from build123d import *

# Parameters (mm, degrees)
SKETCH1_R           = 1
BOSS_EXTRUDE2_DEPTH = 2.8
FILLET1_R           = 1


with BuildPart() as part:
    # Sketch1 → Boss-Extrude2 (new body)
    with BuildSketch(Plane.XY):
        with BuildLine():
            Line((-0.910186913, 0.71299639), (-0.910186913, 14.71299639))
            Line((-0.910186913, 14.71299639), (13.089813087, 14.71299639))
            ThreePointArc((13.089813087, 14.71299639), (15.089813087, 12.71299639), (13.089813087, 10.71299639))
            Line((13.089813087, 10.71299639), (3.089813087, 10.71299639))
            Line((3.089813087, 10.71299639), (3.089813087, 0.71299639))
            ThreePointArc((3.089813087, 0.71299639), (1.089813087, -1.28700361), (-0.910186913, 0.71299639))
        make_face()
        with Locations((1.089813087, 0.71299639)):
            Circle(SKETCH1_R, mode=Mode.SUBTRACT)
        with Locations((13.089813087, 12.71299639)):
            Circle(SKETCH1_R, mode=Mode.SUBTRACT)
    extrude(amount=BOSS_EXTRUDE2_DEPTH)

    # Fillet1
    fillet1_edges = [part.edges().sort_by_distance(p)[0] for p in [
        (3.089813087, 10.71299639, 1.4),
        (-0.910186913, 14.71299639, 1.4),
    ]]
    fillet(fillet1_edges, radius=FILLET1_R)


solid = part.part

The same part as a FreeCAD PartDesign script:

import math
import FreeCAD as App
import Part
import Sketcher


def edges_at(feature, points):
    """Names of the edges that pass closest to the given points."""
    edges = feature.Shape.Edges
    near = lambda p: min(range(len(edges)), key=lambda i: edges[i].distToShape(Part.Vertex(*p))[0])
    return sorted({f"Edge{near(p) + 1}" for p in points})

doc = App.newDocument("Part")
params = doc.addObject("Spreadsheet::Sheet", "Params")
for row, (alias, value) in enumerate([
    ("sketch1_diameter", "2 mm"),
    ("sketch1_radius", "2 mm"),
    ("sketch1_width", "10 mm"),
    ("pad1_length", "2.8 mm"),
    ("fillet_radius", "1 mm"),
], start=1):
    params.set(f"A{row}", alias)
    params.set(f"B{row}", "=" + value)
    params.setAlias(f"B{row}", alias)

body = doc.addObject("PartDesign::Body", "Body")

# Sketch on XY plane
sketch1 = doc.addObject("Sketcher::SketchObject", "Sketch")
body.addObject(sketch1)
sketch1.AttachmentSupport = (doc.XY_Plane, [""])
sketch1.MapMode = "FlatFace"
sketch1.addGeometry(Part.LineSegment(App.Vector(-0.9, 14.7, 0), App.Vector(-0.9, 0.7, 0)), False)
sketch1.addGeometry(Part.ArcOfCircle(Part.Circle(App.Vector(1.1, 0.7, 0), App.Vector(0, 0, 1), 2), math.radians(180), math.radians(360)), False)
sketch1.addGeometry(Part.LineSegment(App.Vector(3.1, 0.7, 0), App.Vector(3.1, 10.7, 0)), False)
sketch1.addGeometry(Part.LineSegment(App.Vector(3.1, 10.7, 0), App.Vector(13.1, 10.7, 0)), False)
sketch1.addGeometry(Part.ArcOfCircle(Part.Circle(App.Vector(13.1, 12.7, 0), App.Vector(0, 0, 1), 2), math.radians(-90), math.radians(90)), False)
sketch1.addGeometry(Part.LineSegment(App.Vector(13.1, 14.7, 0), App.Vector(-0.9, 14.7, 0)), False)
sketch1.addGeometry(Part.Circle(App.Vector(1.1, 0.7, 0), App.Vector(0, 0, 1), 1), False)
sketch1.addGeometry(Part.Circle(App.Vector(13.1, 12.7, 0), App.Vector(0, 0, 1), 1), False)
sketch1.addConstraint(Sketcher.Constraint("Tangent", 0, 2, 1, 1))
sketch1.addConstraint(Sketcher.Constraint("Tangent", 1, 2, 2, 1))
sketch1.addConstraint(Sketcher.Constraint("Coincident", 2, 2, 3, 1))
sketch1.addConstraint(Sketcher.Constraint("Tangent", 3, 2, 4, 1))
sketch1.addConstraint(Sketcher.Constraint("Tangent", 4, 2, 5, 1))
sketch1.addConstraint(Sketcher.Constraint("Coincident", 5, 2, 0, 1))
sketch1.addConstraint(Sketcher.Constraint("Vertical", 0))
sketch1.addConstraint(Sketcher.Constraint("Vertical", 2))
sketch1.addConstraint(Sketcher.Constraint("Horizontal", 3))
sketch1.addConstraint(Sketcher.Constraint("Horizontal", 5))
sketch1.addConstraint(Sketcher.Constraint("Coincident", 6, 3, 1, 3))
sketch1.addConstraint(Sketcher.Constraint("Coincident", 7, 3, 4, 3))
sketch1.addConstraint(Sketcher.Constraint("Equal", 1, 4))
sketch1.addConstraint(Sketcher.Constraint("Equal", 6, 7))
sketch1.addConstraint(Sketcher.Constraint("Equal", 5, 0))
sketch1.addConstraint(Sketcher.Constraint("Diameter", 6, 2.0))
sketch1.addConstraint(Sketcher.Constraint("Radius", 1, 2.0))
sketch1.addConstraint(Sketcher.Constraint("DistanceX", 3, 1, 3, 2, 10.0))
sketch1.addConstraint(Sketcher.Constraint("DistanceX", -1, 1, 1, 3, 1.089813))
sketch1.addConstraint(Sketcher.Constraint("DistanceY", -1, 1, 1, 3, 0.712996))
sketch1.setExpression("Constraints[15]", "Params.sketch1_diameter")
sketch1.setExpression("Constraints[16]", "Params.sketch1_radius")
sketch1.setExpression("Constraints[17]", "Params.sketch1_width")
pad1 = doc.addObject("PartDesign::Pad", "Pad")
body.addObject(pad1)
pad1.Profile = sketch1
pad1.setExpression("Length", "Params.pad1_length")
doc.recompute()

fillet = doc.addObject("PartDesign::Fillet", "Fillet")
body.addObject(fillet)
fillet.Base = (pad1, edges_at(pad1, [(3.09, 10.713, 1.4), (-0.91, 14.713, 1.4)]))
fillet.setExpression("Radius", "Params.fillet_radius")

doc.recompute()
